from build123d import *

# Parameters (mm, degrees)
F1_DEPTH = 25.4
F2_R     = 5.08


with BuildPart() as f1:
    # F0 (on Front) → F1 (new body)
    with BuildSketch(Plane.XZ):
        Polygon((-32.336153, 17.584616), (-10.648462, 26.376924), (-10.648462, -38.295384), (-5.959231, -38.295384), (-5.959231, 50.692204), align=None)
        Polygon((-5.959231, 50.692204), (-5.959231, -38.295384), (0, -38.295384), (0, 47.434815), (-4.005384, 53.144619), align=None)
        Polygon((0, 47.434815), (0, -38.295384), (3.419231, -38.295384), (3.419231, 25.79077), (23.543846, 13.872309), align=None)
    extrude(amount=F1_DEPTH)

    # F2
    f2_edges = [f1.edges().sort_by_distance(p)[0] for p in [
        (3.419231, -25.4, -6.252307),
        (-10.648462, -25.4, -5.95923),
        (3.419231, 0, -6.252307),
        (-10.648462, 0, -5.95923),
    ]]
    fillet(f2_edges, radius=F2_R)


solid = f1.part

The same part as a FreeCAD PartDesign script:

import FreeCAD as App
import Part
import Sketcher
from FreeCAD import Vector
Q = App.Units.Quantity


def edges_at(feature, points):
    """Names of the edges that pass closest to the given points."""
    edges = feature.Shape.Edges
    near = lambda p: min(range(len(edges)), key=lambda i: edges[i].distToShape(Part.Vertex(*p))[0])
    return sorted({f"Edge{near(p) + 1}" for p in points})


def add_polygon(sketch, points):
    """Adds a closed chain of lines whose ends are joined by coincident constraints."""
    first, n = sketch.GeometryCount, len(points)
    for a, b in zip(points, points[1:] + points[:1]):
        sketch.addGeometry(Part.LineSegment(App.Vector(*a, 0), App.Vector(*b, 0)), False)
    for i in range(n):
        sketch.addConstraint(Sketcher.Constraint("Coincident", first + i, 2, first + (i + 1) % n, 1))

doc = App.newDocument("Part")
params = doc.addObject("Spreadsheet::Sheet", "Params")
for row, (alias, value) in enumerate([
    ("pad1_length", "1 in"),
    ("fillet_radius", "0.2 in"),
], start=1):
    params.set(f"A{row}", alias)
    params.set(f"B{row}", "=" + value)
    params.setAlias(f"B{row}", alias)

body = doc.addObject("PartDesign::Body", "Body")

# Sketch on XZ plane
sketch1 = body.newObject("Sketcher::SketchObject", "Sketch")
sketch1.AttachmentSupport = (doc.getObject("XZ_Plane"), [""])
sketch1.MapMode = "FlatFace"
add_polygon(sketch1, [(-32.3, 17.6), (-10.6, 26.4), (-10.6, -38.3), (3.4, -38.3), (3.4, 25.8), (23.5, 13.9), (0, 47.4), (-4, 53.1), (-6, 50.7)])  # lines 0-8
sketch1.addConstraint([
    Sketcher.Constraint("Vertical", 1),
    Sketcher.Constraint("Horizontal", 2),
    Sketcher.Constraint("Vertical", 3),
    Sketcher.Constraint("PointOnObject", 5, 2, -2),
    Sketcher.Constraint("Parallel", 5, 6),
    Sketcher.Constraint("Parallel", 7, 8),
    Sketcher.Constraint("DistanceY", 1, 2, 6, 2, Q("3.6000001 in")),
    Sketcher.Constraint("DistanceY", 8, 2, 6, 2, Q("1.4000001 in")),
    Sketcher.Constraint("Distance", 8, Q("42.330301 mm")),
    Sketcher.Constraint("DistanceY", 1, 2, 1, 1, Q("64.672308 mm")),
    Sketcher.Constraint("DistanceY", 2, 2, 5, 2, Q("85.730199 mm")),
    Sketcher.Constraint("Distance", 0, Q("23.40215 mm")),
    Sketcher.Constraint("Distance", 7, Q("3.135579 mm")),
    Sketcher.Constraint("DistanceX", 2, 1, 2, 2, Q("14.067693 mm")),
    Sketcher.Constraint("DistanceY", 3, 1, 3, 2, Q("64.086154 mm")),
    Sketcher.Constraint("DistanceX", -1, 1, 2, 2, Q("3.419231 mm")),
    Sketcher.Constraint("DistanceY", -1, 1, 3, 2, Q("25.79077 mm")),
    Sketcher.Constraint("DistanceY", -1, 1, 4, 2, Q("13.872309 mm")),
])
pad1 = body.newObject("PartDesign::Pad", "Pad")
pad1.Profile = sketch1
pad1.setExpression("Length", "Params.pad1_length")
doc.recompute()

fillet = body.newObject("PartDesign::Fillet", "Fillet")
fillet.Base = (pad1, edges_at(pad1, [
    (3.419, -25.4, -6.252),
    (-10.648, -25.4, -5.959),
    (3.419, 0, -6.252),
    (-10.648, 0, -5.959),
]))
fillet.setExpression("Radius", "Params.fillet_radius")

doc.recompute()
